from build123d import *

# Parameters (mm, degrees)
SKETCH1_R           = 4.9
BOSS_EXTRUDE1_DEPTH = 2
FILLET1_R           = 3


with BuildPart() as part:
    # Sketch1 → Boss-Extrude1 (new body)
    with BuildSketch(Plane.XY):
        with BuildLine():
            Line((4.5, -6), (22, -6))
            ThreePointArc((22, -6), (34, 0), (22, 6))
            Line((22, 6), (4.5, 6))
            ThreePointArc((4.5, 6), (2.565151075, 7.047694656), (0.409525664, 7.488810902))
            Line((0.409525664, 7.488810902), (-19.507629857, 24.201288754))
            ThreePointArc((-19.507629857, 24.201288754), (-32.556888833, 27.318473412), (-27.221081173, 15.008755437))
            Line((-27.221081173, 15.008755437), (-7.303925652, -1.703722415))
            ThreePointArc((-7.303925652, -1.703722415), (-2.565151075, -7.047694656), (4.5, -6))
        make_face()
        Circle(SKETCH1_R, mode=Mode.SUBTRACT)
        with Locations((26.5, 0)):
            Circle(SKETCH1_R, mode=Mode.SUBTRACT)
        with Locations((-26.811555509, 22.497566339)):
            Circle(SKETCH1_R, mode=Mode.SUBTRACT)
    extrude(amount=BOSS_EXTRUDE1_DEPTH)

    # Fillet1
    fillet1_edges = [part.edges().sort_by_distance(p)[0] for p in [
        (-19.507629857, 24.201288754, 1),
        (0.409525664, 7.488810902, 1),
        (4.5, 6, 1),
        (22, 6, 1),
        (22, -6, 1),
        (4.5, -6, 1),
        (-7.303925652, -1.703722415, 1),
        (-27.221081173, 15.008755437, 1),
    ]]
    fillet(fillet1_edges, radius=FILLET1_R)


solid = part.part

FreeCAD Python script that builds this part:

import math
import FreeCAD as App
import Part
import Sketcher

V = App.Vector
Q = App.Units.Quantity


def edges_at(feature, points):
    """Names of the edges that pass closest to the given points."""
    edges = feature.Shape.Edges
    near = lambda p: min(range(len(edges)), key=lambda i: edges[i].distToShape(Part.Vertex(*p))[0])
    return sorted({f"Edge{near(p) + 1}" for p in points})

doc = App.newDocument("Part")
body = doc.addObject("PartDesign::Body", "Body")

# Sketch on XY plane
sketch1 = body.newObject("Sketcher::SketchObject", "Sketch")
sketch1.AttachmentSupport = (doc.getObject("XY_Plane"), [""])
sketch1.MapMode = "FlatFace"
sketch1.addGeometry([
    Part.LineSegment(V(4.5, -6, 0), V(22, -6, 0)),  # 0
    Part.ArcOfCircle(Part.Circle(V(26.5, 0, 0), V(0, 0, 1), 7.5), math.radians(-127), math.radians(127)),  # 1
    Part.LineSegment(V(22, 6, 0), V(4.5, 6, 0)),  # 2
    Part.ArcOfCircle(Part.Circle(V(0, 0, 0), V(0, 0, 1), 7.5), math.radians(53), math.radians(87)),  # 3
    Part.LineSegment(V(0.4, 7.5, 0), V(-19.5, 24.2, 0)),  # 4
    Part.ArcOfCircle(Part.Circle(V(-26.8, 22.5, 0), V(0, 0, 1), 7.5), math.radians(13), math.radians(267)),  # 5
    Part.LineSegment(V(-27.2, 15, 0), V(-7.3, -1.7, 0)),  # 6
    Part.ArcOfCircle(Part.Circle(V(0, 0, 0), V(0, 0, 1), 7.5), math.radians(-167), math.radians(-53)),  # 7
    Part.Circle(V(0, 0, 0), V(0, 0, 1), 4.9),  # 8
    Part.Circle(V(26.5, 0, 0), V(0, 0, 1), 4.9),  # 9
    Part.Circle(V(-26.8, 22.5, 0), V(0, 0, 1), 4.9),  # 10
], False)
sketch1.addConstraint([
    Sketcher.Constraint("Coincident", 0, 2, 1, 1),
    Sketcher.Constraint("Coincident", 1, 2, 2, 1),
    Sketcher.Constraint("Coincident", 2, 2, 3, 1),
    Sketcher.Constraint("Coincident", 3, 2, 4, 1),
    Sketcher.Constraint("Coincident", 4, 2, 5, 1),
    Sketcher.Constraint("Coincident", 5, 2, 6, 1),
    Sketcher.Constraint("Coincident", 6, 2, 7, 1),
    Sketcher.Constraint("Coincident", 7, 2, 0, 1),
    Sketcher.Constraint("Horizontal", 0),
    Sketcher.Constraint("Horizontal", 2),
    Sketcher.Constraint("Coincident", 3, 3, -1, 1),
    Sketcher.Constraint("Coincident", 7, 3, -1, 1),
    Sketcher.Constraint("Coincident", 8, 3, -1, 1),
    Sketcher.Constraint("Coincident", 9, 3, 1, 3),
    Sketcher.Constraint("Coincident", 10, 3, 5, 3),
    Sketcher.Constraint("Equal", 1, 3),
    Sketcher.Constraint("Equal", 3, 5),
    Sketcher.Constraint("Equal", 5, 7),
    Sketcher.Constraint("Equal", 8, 9),
    Sketcher.Constraint("Equal", 9, 10),
    Sketcher.Constraint("Symmetric", 0, 2, 1, 2, -1),
    Sketcher.Constraint("Parallel", 4, 6),
    Sketcher.Constraint("Equal", 4, 6),
    Sketcher.Constraint("Diameter", 8, 9.8),
    Sketcher.Constraint("Radius", 1, 7.5),
    Sketcher.Constraint("Angle", 4, Q("140 deg")),
    Sketcher.Constraint("Distance", 4, 26.0),
    Sketcher.Constraint("DistanceX", 0, 1, 0, 2, 17.5),
    Sketcher.Constraint("DistanceX", -1, 1, 0, 2, 22.0),
    Sketcher.Constraint("DistanceY", -1, 1, 3, 2, 7.488811),
    Sketcher.Constraint("DistanceX", 5, 2, -1, 1, 27.221081),
])
pad1 = body.newObject("PartDesign::Pad", "Pad")
pad1.Profile = sketch1
pad1.Length = 2
doc.recompute()

fillet = body.newObject("PartDesign::Fillet", "Fillet")
fillet.Base = (pad1, edges_at(pad1, [
    (-19.508, 24.201, 1),
    (0.41, 7.489, 1),
    (4.5, 6, 1),
    (22, 6, 1),
    (22, -6, 1),
    (4.5, -6, 1),
    (-7.304, -1.704, 1),
    (-27.221, 15.009, 1),
]))
fillet.Radius = 3

doc.recompute()
